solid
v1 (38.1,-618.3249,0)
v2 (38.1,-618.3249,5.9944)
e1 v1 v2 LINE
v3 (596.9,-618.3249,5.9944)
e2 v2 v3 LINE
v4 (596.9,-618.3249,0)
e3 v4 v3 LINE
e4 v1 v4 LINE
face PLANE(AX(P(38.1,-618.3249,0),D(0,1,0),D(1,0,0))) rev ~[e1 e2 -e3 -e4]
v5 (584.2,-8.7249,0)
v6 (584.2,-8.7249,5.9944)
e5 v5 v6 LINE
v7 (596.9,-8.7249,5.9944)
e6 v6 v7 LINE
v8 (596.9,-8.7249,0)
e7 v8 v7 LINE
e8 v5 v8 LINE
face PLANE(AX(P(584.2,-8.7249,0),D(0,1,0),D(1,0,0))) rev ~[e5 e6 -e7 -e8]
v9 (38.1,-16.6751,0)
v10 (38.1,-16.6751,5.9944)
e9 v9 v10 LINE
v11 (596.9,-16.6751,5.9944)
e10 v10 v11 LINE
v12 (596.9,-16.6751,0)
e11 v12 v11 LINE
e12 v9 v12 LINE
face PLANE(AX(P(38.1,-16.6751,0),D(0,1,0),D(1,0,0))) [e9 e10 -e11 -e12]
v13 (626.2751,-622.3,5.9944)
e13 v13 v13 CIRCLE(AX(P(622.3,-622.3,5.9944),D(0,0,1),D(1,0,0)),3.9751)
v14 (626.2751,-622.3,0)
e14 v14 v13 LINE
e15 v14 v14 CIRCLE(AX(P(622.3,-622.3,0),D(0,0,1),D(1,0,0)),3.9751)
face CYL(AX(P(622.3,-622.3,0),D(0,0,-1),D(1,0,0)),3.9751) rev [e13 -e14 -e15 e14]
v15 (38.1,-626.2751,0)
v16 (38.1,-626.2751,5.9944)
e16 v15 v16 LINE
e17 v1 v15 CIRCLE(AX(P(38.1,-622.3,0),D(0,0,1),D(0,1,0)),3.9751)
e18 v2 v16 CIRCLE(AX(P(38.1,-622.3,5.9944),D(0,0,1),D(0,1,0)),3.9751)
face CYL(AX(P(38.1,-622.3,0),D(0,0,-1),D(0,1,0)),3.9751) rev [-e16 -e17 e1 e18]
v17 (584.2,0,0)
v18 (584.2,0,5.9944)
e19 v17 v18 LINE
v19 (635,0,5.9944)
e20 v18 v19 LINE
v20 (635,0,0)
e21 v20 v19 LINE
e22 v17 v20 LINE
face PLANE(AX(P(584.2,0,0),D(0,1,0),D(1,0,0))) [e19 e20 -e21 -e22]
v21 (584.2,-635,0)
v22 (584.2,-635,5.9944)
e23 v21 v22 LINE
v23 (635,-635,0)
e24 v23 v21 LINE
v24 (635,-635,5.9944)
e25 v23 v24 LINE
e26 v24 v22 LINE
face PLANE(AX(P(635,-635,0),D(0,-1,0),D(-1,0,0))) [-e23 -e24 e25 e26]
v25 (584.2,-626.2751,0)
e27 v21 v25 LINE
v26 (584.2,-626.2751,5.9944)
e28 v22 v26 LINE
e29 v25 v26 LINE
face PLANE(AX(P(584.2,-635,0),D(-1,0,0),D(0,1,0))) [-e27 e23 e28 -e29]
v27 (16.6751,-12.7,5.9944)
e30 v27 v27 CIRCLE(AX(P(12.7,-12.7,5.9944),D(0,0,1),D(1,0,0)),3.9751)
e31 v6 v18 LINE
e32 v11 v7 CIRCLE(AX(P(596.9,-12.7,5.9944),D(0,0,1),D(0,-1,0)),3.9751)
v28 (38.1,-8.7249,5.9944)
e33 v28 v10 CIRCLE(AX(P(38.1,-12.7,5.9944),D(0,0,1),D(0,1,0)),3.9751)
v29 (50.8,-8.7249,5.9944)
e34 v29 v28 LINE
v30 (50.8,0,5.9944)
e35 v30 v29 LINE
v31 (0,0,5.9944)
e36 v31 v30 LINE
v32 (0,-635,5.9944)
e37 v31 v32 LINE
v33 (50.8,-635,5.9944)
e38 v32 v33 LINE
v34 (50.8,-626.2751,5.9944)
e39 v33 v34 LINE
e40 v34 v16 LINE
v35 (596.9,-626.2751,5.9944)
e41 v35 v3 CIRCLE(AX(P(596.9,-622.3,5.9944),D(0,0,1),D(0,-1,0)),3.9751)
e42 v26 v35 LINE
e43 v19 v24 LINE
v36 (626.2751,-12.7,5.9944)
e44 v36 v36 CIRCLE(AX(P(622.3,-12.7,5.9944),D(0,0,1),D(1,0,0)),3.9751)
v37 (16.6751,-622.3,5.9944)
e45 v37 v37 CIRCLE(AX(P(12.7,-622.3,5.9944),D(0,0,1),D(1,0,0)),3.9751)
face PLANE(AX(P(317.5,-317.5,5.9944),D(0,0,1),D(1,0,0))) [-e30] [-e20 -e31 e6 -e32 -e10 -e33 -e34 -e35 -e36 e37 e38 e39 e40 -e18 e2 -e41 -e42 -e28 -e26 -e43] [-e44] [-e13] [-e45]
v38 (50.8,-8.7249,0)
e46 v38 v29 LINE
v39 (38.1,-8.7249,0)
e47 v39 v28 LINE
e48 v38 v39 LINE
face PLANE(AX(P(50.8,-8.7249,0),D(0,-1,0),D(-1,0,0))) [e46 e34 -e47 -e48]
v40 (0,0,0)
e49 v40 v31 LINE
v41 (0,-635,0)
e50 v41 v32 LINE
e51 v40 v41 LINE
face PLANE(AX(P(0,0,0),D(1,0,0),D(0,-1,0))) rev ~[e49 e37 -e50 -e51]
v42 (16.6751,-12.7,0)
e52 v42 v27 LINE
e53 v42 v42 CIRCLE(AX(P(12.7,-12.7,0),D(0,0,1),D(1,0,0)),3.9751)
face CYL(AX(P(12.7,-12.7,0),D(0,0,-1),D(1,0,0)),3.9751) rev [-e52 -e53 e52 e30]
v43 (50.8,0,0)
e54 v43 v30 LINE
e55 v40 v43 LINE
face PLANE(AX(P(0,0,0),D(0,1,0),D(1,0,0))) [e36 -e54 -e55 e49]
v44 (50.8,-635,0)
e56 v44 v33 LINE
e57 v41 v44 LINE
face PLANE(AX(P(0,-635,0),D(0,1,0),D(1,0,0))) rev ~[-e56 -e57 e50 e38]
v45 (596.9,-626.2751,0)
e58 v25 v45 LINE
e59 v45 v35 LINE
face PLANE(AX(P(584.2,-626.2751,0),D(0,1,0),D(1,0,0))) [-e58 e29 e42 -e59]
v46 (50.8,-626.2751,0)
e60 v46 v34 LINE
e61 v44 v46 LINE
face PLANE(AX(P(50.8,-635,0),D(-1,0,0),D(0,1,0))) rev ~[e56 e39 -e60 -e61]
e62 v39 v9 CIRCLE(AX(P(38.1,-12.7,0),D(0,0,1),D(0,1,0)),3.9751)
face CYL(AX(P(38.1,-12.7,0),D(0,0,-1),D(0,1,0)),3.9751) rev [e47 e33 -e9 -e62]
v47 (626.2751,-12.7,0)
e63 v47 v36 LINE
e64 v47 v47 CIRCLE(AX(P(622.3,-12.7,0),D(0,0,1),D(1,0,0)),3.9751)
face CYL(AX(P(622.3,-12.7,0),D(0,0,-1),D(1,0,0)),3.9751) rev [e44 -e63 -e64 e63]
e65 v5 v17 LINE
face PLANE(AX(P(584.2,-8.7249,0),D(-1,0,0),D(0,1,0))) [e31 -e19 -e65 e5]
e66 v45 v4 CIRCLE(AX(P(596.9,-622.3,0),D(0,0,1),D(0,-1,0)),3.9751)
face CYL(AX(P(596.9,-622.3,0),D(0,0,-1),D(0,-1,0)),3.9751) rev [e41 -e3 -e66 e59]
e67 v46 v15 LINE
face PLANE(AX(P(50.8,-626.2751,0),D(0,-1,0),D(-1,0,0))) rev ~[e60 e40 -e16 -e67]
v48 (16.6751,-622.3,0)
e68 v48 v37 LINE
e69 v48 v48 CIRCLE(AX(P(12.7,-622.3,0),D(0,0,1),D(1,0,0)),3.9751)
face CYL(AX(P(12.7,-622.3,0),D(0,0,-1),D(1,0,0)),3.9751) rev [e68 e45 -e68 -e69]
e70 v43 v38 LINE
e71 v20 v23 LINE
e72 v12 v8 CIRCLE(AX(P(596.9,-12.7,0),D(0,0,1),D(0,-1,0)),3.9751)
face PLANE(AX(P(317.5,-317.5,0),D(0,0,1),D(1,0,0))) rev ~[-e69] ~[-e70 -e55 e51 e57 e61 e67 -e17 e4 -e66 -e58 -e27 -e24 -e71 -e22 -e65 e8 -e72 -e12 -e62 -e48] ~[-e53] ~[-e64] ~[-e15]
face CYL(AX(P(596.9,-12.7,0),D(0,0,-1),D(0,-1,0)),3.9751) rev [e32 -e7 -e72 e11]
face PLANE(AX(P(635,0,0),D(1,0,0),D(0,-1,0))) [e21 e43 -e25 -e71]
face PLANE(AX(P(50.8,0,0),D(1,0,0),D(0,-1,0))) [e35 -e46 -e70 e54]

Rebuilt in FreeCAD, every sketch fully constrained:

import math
import FreeCAD as App
import Part
import Sketcher
Q = App.Units.Quantity

doc = App.newDocument("Part")
params = doc.addObject("Spreadsheet::Sheet", "Params")
for row, (alias, value) in enumerate([
    ("sketch1_width", "2 in"),
    ("sketch1_width2", "22 in"),
    ("sketch1_height", "25 in"),
    ("sketch1_diameter", "0.313 in"),
    ("sketch1_width3", "0.5 in"),
    ("pad1_length", "0.236 in"),
], start=1):
    params.set(f"A{row}", alias)
    params.set(f"B{row}", "=" + value)
    params.setAlias(f"B{row}", alias)

body = doc.addObject("PartDesign::Body", "Body")

# Sketch on XY plane
sketch1 = body.newObject("Sketcher::SketchObject", "Sketch")
sketch1.AttachmentSupport = (doc.getObject("XY_Plane"), [""])
sketch1.MapMode = "FlatFace"
sketch1.addGeometry(Part.LineSegment(App.Vector(0, 0, 0), App.Vector(0, -635, 0)), False)
sketch1.addGeometry(Part.LineSegment(App.Vector(0, -635, 0), App.Vector(50.8, -635, 0)), False)
sketch1.addGeometry(Part.LineSegment(App.Vector(50.8, -635, 0), App.Vector(50.8, -626.3, 0)), False)
sketch1.addGeometry(Part.LineSegment(App.Vector(50.8, -626.3, 0), App.Vector(38.1, -626.3, 0)), False)
sketch1.addGeometry(Part.ArcOfCircle(Part.Circle(App.Vector(38.1, -622.3, 0), App.Vector(0, 0, 1), 4), math.radians(90), math.radians(270)), False)
sketch1.addGeometry(Part.LineSegment(App.Vector(38.1, -618.3, 0), App.Vector(596.9, -618.3, 0)), False)
sketch1.addGeometry(Part.ArcOfCircle(Part.Circle(App.Vector(596.9, -622.3, 0), App.Vector(0, 0, 1), 4), math.radians(-90), math.radians(90)), False)
sketch1.addGeometry(Part.LineSegment(App.Vector(596.9, -626.3, 0), App.Vector(584.2, -626.3, 0)), False)
sketch1.addGeometry(Part.LineSegment(App.Vector(584.2, -626.3, 0), App.Vector(584.2, -635, 0)), False)
sketch1.addGeometry(Part.LineSegment(App.Vector(584.2, -635, 0), App.Vector(635, -635, 0)), False)
sketch1.addGeometry(Part.LineSegment(App.Vector(635, -635, 0), App.Vector(635, 0, 0)), False)
sketch1.addGeometry(Part.LineSegment(App.Vector(635, 0, 0), App.Vector(584.2, 0, 0)), False)
sketch1.addGeometry(Part.LineSegment(App.Vector(584.2, 0, 0), App.Vector(584.2, -8.7, 0)), False)
sketch1.addGeometry(Part.LineSegment(App.Vector(584.2, -8.7, 0), App.Vector(596.9, -8.7, 0)), False)
sketch1.addGeometry(Part.ArcOfCircle(Part.Circle(App.Vector(596.9, -12.7, 0), App.Vector(0, 0, 1), 4), math.radians(-90), math.radians(90)), False)
sketch1.addGeometry(Part.LineSegment(App.Vector(596.9, -16.7, 0), App.Vector(38.1, -16.7, 0)), False)
sketch1.addGeometry(Part.ArcOfCircle(Part.Circle(App.Vector(38.1, -12.7, 0), App.Vector(0, 0, 1), 4), math.radians(90), math.radians(270)), False)
sketch1.addGeometry(Part.LineSegment(App.Vector(38.1, -8.7, 0), App.Vector(50.8, -8.7, 0)), False)
sketch1.addGeometry(Part.LineSegment(App.Vector(50.8, -8.7, 0), App.Vector(50.8, 0, 0)), False)
sketch1.addGeometry(Part.LineSegment(App.Vector(50.8, 0, 0), App.Vector(0, 0, 0)), False)
sketch1.addGeometry(Part.Circle(App.Vector(12.7, -622.3, 0), App.Vector(0, 0, 1), 4), False)
sketch1.addGeometry(Part.Circle(App.Vector(622.3, -622.3, 0), App.Vector(0, 0, 1), 4), False)
sketch1.addGeometry(Part.Circle(App.Vector(12.7, -12.7, 0), App.Vector(0, 0, 1), 4), False)
sketch1.addGeometry(Part.Circle(App.Vector(622.3, -12.7, 0), App.Vector(0, 0, 1), 4), False)
sketch1.addConstraint(Sketcher.Constraint("Coincident", 0, 2, 1, 1))
sketch1.addConstraint(Sketcher.Constraint("Coincident", 1, 2, 2, 1))
sketch1.addConstraint(Sketcher.Constraint("Coincident", 2, 2, 3, 1))
sketch1.addConstraint(Sketcher.Constraint("Tangent", 3, 2, 4, 2))
sketch1.addConstraint(Sketcher.Constraint("Tangent", 4, 1, 5, 1))
sketch1.addConstraint(Sketcher.Constraint("Tangent", 5, 2, 6, 2))
sketch1.addConstraint(Sketcher.Constraint("Tangent", 6, 1, 7, 1))
sketch1.addConstraint(Sketcher.Constraint("Coincident", 7, 2, 8, 1))
sketch1.addConstraint(Sketcher.Constraint("Coincident", 8, 2, 9, 1))
sketch1.addConstraint(Sketcher.Constraint("Coincident", 9, 2, 10, 1))
sketch1.addConstraint(Sketcher.Constraint("Coincident", 10, 2, 11, 1))
sketch1.addConstraint(Sketcher.Constraint("Coincident", 11, 2, 12, 1))
sketch1.addConstraint(Sketcher.Constraint("Coincident", 12, 2, 13, 1))
sketch1.addConstraint(Sketcher.Constraint("Tangent", 13, 2, 14, 2))
sketch1.addConstraint(Sketcher.Constraint("Tangent", 14, 1, 15, 1))
sketch1.addConstraint(Sketcher.Constraint("Tangent", 15, 2, 16, 2))
sketch1.addConstraint(Sketcher.Constraint("Tangent", 16, 1, 17, 1))
sketch1.addConstraint(Sketcher.Constraint("Coincident", 17, 2, 18, 1))
sketch1.addConstraint(Sketcher.Constraint("Coincident", 18, 2, 19, 1))
sketch1.addConstraint(Sketcher.Constraint("Coincident", 19, 2, 0, 1))
sketch1.addConstraint(Sketcher.Constraint("Vertical", 0))
sketch1.addConstraint(Sketcher.Constraint("Horizontal", 1))
sketch1.addConstraint(Sketcher.Constraint("Vertical", 2))
sketch1.addConstraint(Sketcher.Constraint("Horizontal", 3))
sketch1.addConstraint(Sketcher.Constraint("Horizontal", 5))
sketch1.addConstraint(Sketcher.Constraint("Horizontal", 7))
sketch1.addConstraint(Sketcher.Constraint("Vertical", 8))
sketch1.addConstraint(Sketcher.Constraint("Horizontal", 9))
sketch1.addConstraint(Sketcher.Constraint("Vertical", 10))
sketch1.addConstraint(Sketcher.Constraint("Horizontal", 11))
sketch1.addConstraint(Sketcher.Constraint("Vertical", 12))
sketch1.addConstraint(Sketcher.Constraint("Horizontal", 13))
sketch1.addConstraint(Sketcher.Constraint("Horizontal", 15))
sketch1.addConstraint(Sketcher.Constraint("Horizontal", 17))
sketch1.addConstraint(Sketcher.Constraint("Vertical", 18))
sketch1.addConstraint(Sketcher.Constraint("Horizontal", 19))
sketch1.addConstraint(Sketcher.Constraint("Coincident", 19, 2, -1, 1))
sketch1.addConstraint(Sketcher.Constraint("Equal", 4, 6))
sketch1.addConstraint(Sketcher.Constraint("Equal", 6, 14))
sketch1.addConstraint(Sketcher.Constraint("Equal", 14, 16))
sketch1.addConstraint(Sketcher.Constraint("Equal", 16, 20))
sketch1.addConstraint(Sketcher.Constraint("Equal", 20, 21))
sketch1.addConstraint(Sketcher.Constraint("Equal", 21, 22))
sketch1.addConstraint(Sketcher.Constraint("Equal", 22, 23))
sketch1.addConstraint(Sketcher.Constraint("PointOnObject", 10, 2, -1))
sketch1.addConstraint(Sketcher.Constraint("Horizontal", 6, 3, 20, 3))
sketch1.addConstraint(Sketcher.Constraint("Horizontal", 20, 3, 21, 3))
sketch1.addConstraint(Sketcher.Constraint("Horizontal", 16, 3, 22, 3))
sketch1.addConstraint(Sketcher.Constraint("Horizontal", 22, 3, 23, 3))
sketch1.addConstraint(Sketcher.Constraint("Horizontal", 1, 2, 8, 2))
sketch1.addConstraint(Sketcher.Constraint("Vertical", 6, 3, 14, 3))
sketch1.addConstraint(Sketcher.Constraint("Vertical", 4, 3, 16, 3))
sketch1.addConstraint(Sketcher.Constraint("Vertical", 20, 3, 22, 3))
sketch1.addConstraint(Sketcher.Constraint("Vertical", 21, 3, 23, 3))
sketch1.addConstraint(Sketcher.Constraint("Vertical", 8, 2, 11, 2))
sketch1.addConstraint(Sketcher.Constraint("Vertical", 2, 2, 17, 2))
sketch1.addConstraint(Sketcher.Constraint("Equal", 3, 7))
sketch1.addConstraint(Sketcher.Constraint("Equal", 1, 9))
sketch1.addConstraint(Sketcher.Constraint("Equal", 8, 12))
sketch1.addConstraint(Sketcher.Constraint("DistanceX", 1, 1, 1, 2, Q("2 in")))
sketch1.addConstraint(Sketcher.Constraint("DistanceX", 5, 1, 5, 2, Q("22 in")))
sketch1.addConstraint(Sketcher.Constraint("DistanceY", 0, 2, 0, 1, Q("25 in")))
sketch1.addConstraint(Sketcher.Constraint("Diameter", 20, Q("0.313 in")))
sketch1.addConstraint(Sketcher.Constraint("DistanceX", 3, 2, 3, 1, Q("0.5 in")))
sketch1.addConstraint(Sketcher.Constraint("DistanceY", 6, 3, 14, 3, Q("24 in")))
sketch1.addConstraint(Sketcher.Constraint("DistanceX", 20, 3, 4, 3, Q("1 in")))
sketch1.addConstraint(Sketcher.Constraint("DistanceX", 6, 3, 21, 3, Q("1 in")))
sketch1.setExpression("Constraints[59]", "Params.sketch1_width")
sketch1.setExpression("Constraints[60]", "Params.sketch1_width2")
sketch1.setExpression("Constraints[61]", "Params.sketch1_height")
sketch1.setExpression("Constraints[62]", "Params.sketch1_diameter")
sketch1.setExpression("Constraints[63]", "Params.sketch1_width3")
pad1 = body.newObject("PartDesign::Pad", "Pad")
pad1.Profile = sketch1
pad1.setExpression("Length", "Params.pad1_length")

doc.recompute()
